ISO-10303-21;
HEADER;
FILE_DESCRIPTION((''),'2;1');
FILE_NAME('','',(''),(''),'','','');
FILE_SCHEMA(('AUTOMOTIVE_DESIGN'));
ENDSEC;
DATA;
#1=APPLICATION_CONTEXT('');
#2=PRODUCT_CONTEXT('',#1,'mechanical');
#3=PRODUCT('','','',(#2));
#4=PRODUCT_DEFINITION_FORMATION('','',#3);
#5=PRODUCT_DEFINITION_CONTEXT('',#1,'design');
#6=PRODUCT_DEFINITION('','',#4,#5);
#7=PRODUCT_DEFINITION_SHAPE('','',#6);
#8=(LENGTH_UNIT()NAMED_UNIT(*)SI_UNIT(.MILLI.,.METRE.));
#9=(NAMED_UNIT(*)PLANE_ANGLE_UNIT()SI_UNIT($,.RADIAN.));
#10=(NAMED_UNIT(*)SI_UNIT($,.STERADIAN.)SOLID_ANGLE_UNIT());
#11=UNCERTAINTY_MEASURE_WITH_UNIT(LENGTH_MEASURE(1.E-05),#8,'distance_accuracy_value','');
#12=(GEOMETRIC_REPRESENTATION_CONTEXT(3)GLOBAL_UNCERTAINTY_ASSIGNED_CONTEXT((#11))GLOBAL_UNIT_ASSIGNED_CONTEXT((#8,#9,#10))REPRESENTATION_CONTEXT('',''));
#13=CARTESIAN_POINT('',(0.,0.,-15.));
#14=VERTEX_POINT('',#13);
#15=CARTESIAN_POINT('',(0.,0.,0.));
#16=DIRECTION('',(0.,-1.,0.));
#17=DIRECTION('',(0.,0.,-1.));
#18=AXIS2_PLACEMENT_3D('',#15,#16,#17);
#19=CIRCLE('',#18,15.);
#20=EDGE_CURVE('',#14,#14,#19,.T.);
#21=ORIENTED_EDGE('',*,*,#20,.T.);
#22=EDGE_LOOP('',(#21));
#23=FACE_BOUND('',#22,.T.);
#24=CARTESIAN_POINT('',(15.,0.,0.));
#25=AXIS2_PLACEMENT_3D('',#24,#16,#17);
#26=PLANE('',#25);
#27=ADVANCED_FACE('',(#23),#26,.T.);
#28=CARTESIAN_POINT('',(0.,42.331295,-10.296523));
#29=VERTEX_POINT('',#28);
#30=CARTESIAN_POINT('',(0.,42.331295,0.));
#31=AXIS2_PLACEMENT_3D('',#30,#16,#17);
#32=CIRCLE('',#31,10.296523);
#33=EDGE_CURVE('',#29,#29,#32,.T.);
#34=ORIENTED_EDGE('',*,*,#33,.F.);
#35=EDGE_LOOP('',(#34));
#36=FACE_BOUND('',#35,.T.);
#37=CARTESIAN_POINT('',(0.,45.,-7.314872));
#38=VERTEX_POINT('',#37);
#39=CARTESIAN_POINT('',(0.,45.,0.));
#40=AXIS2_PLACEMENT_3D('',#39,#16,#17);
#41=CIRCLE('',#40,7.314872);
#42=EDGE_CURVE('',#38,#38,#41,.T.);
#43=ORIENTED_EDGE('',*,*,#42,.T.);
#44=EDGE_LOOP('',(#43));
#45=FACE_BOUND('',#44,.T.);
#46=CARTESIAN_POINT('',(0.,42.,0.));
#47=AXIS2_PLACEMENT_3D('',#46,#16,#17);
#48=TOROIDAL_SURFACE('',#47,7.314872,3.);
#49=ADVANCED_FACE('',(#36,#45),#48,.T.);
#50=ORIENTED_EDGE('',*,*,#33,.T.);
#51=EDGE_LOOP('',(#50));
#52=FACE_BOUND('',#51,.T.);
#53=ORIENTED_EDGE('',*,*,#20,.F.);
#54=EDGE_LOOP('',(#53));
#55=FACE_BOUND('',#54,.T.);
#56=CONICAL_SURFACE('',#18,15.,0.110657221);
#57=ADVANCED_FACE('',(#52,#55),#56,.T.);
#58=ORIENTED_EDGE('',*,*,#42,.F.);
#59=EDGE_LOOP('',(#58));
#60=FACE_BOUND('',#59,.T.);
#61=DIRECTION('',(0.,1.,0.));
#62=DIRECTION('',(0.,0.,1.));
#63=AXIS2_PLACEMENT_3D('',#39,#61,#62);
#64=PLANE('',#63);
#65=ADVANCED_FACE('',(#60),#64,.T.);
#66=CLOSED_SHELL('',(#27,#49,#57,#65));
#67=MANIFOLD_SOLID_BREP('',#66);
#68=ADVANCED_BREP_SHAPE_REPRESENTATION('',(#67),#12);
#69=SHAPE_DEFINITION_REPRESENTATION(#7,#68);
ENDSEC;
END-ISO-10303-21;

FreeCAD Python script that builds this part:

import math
import FreeCAD as App
import Part
import Sketcher

V = App.Vector

doc = App.newDocument("Part")
params = doc.addObject("Spreadsheet::Sheet", "Params")
for row, (alias, value) in enumerate([
    ("sketch1_radius", "3 mm"),
    ("sketch1_width", "15 mm"),
    ("sketch1_height", "45 mm"),
    ("revolution_angle", "360 deg"),
], start=1):
    params.set(f"A{row}", alias)
    params.set(f"B{row}", "=" + value)
    params.setAlias(f"B{row}", alias)

body = doc.addObject("PartDesign::Body", "Body")

# Sketch on XY plane
sketch1 = doc.addObject("Sketcher::SketchObject", "Sketch")
body.addObject(sketch1)
sketch1.AttachmentSupport = (doc.XY_Plane, [""])
sketch1.MapMode = "FlatFace"
sketch1.addGeometry([
    Part.LineSegment(V(0, 45, 0), V(0, 0, 0)),  # 0
    Part.LineSegment(V(0, 0, 0), V(15, 0, 0)),  # 1
    Part.LineSegment(V(15, 0, 0), V(10.3, 42.3, 0)),  # 2
    Part.ArcOfCircle(Part.Circle(V(7.3, 42, 0), V(0, 0, 1), 3), math.radians(6), math.radians(90)),  # 3
    Part.LineSegment(V(7.3, 45, 0), V(0, 45, 0)),  # 4
], False)
sketch1.addConstraint([
    Sketcher.Constraint("Coincident", 0, 2, 1, 1),
    Sketcher.Constraint("Coincident", 1, 2, 2, 1),
    Sketcher.Constraint("Tangent", 2, 2, 3, 1),
    Sketcher.Constraint("Tangent", 3, 2, 4, 1),
    Sketcher.Constraint("Coincident", 4, 2, 0, 1),
    Sketcher.Constraint("Vertical", 0),
    Sketcher.Constraint("Horizontal", 1),
    Sketcher.Constraint("Horizontal", 4),
    Sketcher.Constraint("Coincident", 0, 2, -1, 1),
    Sketcher.Constraint("Radius", 3, 3.0),
    Sketcher.Constraint("DistanceX", 1, 1, 1, 2, 15.0),
    Sketcher.Constraint("DistanceY", 0, 2, 0, 1, 45.0),
    Sketcher.Constraint("DistanceX", 4, 2, 4, 1, 7.314872),
])
sketch1.setExpression("Constraints[9]", "Params.sketch1_radius")
sketch1.setExpression("Constraints[10]", "Params.sketch1_width")
sketch1.setExpression("Constraints[11]", "Params.sketch1_height")
revolution = doc.addObject("PartDesign::Revolution", "Revolution")
body.addObject(revolution)
revolution.Profile = sketch1
revolution.ReferenceAxis = (sketch1, ["V_Axis"])
revolution.setExpression("Angle", "Params.revolution_angle")

doc.recompute()
